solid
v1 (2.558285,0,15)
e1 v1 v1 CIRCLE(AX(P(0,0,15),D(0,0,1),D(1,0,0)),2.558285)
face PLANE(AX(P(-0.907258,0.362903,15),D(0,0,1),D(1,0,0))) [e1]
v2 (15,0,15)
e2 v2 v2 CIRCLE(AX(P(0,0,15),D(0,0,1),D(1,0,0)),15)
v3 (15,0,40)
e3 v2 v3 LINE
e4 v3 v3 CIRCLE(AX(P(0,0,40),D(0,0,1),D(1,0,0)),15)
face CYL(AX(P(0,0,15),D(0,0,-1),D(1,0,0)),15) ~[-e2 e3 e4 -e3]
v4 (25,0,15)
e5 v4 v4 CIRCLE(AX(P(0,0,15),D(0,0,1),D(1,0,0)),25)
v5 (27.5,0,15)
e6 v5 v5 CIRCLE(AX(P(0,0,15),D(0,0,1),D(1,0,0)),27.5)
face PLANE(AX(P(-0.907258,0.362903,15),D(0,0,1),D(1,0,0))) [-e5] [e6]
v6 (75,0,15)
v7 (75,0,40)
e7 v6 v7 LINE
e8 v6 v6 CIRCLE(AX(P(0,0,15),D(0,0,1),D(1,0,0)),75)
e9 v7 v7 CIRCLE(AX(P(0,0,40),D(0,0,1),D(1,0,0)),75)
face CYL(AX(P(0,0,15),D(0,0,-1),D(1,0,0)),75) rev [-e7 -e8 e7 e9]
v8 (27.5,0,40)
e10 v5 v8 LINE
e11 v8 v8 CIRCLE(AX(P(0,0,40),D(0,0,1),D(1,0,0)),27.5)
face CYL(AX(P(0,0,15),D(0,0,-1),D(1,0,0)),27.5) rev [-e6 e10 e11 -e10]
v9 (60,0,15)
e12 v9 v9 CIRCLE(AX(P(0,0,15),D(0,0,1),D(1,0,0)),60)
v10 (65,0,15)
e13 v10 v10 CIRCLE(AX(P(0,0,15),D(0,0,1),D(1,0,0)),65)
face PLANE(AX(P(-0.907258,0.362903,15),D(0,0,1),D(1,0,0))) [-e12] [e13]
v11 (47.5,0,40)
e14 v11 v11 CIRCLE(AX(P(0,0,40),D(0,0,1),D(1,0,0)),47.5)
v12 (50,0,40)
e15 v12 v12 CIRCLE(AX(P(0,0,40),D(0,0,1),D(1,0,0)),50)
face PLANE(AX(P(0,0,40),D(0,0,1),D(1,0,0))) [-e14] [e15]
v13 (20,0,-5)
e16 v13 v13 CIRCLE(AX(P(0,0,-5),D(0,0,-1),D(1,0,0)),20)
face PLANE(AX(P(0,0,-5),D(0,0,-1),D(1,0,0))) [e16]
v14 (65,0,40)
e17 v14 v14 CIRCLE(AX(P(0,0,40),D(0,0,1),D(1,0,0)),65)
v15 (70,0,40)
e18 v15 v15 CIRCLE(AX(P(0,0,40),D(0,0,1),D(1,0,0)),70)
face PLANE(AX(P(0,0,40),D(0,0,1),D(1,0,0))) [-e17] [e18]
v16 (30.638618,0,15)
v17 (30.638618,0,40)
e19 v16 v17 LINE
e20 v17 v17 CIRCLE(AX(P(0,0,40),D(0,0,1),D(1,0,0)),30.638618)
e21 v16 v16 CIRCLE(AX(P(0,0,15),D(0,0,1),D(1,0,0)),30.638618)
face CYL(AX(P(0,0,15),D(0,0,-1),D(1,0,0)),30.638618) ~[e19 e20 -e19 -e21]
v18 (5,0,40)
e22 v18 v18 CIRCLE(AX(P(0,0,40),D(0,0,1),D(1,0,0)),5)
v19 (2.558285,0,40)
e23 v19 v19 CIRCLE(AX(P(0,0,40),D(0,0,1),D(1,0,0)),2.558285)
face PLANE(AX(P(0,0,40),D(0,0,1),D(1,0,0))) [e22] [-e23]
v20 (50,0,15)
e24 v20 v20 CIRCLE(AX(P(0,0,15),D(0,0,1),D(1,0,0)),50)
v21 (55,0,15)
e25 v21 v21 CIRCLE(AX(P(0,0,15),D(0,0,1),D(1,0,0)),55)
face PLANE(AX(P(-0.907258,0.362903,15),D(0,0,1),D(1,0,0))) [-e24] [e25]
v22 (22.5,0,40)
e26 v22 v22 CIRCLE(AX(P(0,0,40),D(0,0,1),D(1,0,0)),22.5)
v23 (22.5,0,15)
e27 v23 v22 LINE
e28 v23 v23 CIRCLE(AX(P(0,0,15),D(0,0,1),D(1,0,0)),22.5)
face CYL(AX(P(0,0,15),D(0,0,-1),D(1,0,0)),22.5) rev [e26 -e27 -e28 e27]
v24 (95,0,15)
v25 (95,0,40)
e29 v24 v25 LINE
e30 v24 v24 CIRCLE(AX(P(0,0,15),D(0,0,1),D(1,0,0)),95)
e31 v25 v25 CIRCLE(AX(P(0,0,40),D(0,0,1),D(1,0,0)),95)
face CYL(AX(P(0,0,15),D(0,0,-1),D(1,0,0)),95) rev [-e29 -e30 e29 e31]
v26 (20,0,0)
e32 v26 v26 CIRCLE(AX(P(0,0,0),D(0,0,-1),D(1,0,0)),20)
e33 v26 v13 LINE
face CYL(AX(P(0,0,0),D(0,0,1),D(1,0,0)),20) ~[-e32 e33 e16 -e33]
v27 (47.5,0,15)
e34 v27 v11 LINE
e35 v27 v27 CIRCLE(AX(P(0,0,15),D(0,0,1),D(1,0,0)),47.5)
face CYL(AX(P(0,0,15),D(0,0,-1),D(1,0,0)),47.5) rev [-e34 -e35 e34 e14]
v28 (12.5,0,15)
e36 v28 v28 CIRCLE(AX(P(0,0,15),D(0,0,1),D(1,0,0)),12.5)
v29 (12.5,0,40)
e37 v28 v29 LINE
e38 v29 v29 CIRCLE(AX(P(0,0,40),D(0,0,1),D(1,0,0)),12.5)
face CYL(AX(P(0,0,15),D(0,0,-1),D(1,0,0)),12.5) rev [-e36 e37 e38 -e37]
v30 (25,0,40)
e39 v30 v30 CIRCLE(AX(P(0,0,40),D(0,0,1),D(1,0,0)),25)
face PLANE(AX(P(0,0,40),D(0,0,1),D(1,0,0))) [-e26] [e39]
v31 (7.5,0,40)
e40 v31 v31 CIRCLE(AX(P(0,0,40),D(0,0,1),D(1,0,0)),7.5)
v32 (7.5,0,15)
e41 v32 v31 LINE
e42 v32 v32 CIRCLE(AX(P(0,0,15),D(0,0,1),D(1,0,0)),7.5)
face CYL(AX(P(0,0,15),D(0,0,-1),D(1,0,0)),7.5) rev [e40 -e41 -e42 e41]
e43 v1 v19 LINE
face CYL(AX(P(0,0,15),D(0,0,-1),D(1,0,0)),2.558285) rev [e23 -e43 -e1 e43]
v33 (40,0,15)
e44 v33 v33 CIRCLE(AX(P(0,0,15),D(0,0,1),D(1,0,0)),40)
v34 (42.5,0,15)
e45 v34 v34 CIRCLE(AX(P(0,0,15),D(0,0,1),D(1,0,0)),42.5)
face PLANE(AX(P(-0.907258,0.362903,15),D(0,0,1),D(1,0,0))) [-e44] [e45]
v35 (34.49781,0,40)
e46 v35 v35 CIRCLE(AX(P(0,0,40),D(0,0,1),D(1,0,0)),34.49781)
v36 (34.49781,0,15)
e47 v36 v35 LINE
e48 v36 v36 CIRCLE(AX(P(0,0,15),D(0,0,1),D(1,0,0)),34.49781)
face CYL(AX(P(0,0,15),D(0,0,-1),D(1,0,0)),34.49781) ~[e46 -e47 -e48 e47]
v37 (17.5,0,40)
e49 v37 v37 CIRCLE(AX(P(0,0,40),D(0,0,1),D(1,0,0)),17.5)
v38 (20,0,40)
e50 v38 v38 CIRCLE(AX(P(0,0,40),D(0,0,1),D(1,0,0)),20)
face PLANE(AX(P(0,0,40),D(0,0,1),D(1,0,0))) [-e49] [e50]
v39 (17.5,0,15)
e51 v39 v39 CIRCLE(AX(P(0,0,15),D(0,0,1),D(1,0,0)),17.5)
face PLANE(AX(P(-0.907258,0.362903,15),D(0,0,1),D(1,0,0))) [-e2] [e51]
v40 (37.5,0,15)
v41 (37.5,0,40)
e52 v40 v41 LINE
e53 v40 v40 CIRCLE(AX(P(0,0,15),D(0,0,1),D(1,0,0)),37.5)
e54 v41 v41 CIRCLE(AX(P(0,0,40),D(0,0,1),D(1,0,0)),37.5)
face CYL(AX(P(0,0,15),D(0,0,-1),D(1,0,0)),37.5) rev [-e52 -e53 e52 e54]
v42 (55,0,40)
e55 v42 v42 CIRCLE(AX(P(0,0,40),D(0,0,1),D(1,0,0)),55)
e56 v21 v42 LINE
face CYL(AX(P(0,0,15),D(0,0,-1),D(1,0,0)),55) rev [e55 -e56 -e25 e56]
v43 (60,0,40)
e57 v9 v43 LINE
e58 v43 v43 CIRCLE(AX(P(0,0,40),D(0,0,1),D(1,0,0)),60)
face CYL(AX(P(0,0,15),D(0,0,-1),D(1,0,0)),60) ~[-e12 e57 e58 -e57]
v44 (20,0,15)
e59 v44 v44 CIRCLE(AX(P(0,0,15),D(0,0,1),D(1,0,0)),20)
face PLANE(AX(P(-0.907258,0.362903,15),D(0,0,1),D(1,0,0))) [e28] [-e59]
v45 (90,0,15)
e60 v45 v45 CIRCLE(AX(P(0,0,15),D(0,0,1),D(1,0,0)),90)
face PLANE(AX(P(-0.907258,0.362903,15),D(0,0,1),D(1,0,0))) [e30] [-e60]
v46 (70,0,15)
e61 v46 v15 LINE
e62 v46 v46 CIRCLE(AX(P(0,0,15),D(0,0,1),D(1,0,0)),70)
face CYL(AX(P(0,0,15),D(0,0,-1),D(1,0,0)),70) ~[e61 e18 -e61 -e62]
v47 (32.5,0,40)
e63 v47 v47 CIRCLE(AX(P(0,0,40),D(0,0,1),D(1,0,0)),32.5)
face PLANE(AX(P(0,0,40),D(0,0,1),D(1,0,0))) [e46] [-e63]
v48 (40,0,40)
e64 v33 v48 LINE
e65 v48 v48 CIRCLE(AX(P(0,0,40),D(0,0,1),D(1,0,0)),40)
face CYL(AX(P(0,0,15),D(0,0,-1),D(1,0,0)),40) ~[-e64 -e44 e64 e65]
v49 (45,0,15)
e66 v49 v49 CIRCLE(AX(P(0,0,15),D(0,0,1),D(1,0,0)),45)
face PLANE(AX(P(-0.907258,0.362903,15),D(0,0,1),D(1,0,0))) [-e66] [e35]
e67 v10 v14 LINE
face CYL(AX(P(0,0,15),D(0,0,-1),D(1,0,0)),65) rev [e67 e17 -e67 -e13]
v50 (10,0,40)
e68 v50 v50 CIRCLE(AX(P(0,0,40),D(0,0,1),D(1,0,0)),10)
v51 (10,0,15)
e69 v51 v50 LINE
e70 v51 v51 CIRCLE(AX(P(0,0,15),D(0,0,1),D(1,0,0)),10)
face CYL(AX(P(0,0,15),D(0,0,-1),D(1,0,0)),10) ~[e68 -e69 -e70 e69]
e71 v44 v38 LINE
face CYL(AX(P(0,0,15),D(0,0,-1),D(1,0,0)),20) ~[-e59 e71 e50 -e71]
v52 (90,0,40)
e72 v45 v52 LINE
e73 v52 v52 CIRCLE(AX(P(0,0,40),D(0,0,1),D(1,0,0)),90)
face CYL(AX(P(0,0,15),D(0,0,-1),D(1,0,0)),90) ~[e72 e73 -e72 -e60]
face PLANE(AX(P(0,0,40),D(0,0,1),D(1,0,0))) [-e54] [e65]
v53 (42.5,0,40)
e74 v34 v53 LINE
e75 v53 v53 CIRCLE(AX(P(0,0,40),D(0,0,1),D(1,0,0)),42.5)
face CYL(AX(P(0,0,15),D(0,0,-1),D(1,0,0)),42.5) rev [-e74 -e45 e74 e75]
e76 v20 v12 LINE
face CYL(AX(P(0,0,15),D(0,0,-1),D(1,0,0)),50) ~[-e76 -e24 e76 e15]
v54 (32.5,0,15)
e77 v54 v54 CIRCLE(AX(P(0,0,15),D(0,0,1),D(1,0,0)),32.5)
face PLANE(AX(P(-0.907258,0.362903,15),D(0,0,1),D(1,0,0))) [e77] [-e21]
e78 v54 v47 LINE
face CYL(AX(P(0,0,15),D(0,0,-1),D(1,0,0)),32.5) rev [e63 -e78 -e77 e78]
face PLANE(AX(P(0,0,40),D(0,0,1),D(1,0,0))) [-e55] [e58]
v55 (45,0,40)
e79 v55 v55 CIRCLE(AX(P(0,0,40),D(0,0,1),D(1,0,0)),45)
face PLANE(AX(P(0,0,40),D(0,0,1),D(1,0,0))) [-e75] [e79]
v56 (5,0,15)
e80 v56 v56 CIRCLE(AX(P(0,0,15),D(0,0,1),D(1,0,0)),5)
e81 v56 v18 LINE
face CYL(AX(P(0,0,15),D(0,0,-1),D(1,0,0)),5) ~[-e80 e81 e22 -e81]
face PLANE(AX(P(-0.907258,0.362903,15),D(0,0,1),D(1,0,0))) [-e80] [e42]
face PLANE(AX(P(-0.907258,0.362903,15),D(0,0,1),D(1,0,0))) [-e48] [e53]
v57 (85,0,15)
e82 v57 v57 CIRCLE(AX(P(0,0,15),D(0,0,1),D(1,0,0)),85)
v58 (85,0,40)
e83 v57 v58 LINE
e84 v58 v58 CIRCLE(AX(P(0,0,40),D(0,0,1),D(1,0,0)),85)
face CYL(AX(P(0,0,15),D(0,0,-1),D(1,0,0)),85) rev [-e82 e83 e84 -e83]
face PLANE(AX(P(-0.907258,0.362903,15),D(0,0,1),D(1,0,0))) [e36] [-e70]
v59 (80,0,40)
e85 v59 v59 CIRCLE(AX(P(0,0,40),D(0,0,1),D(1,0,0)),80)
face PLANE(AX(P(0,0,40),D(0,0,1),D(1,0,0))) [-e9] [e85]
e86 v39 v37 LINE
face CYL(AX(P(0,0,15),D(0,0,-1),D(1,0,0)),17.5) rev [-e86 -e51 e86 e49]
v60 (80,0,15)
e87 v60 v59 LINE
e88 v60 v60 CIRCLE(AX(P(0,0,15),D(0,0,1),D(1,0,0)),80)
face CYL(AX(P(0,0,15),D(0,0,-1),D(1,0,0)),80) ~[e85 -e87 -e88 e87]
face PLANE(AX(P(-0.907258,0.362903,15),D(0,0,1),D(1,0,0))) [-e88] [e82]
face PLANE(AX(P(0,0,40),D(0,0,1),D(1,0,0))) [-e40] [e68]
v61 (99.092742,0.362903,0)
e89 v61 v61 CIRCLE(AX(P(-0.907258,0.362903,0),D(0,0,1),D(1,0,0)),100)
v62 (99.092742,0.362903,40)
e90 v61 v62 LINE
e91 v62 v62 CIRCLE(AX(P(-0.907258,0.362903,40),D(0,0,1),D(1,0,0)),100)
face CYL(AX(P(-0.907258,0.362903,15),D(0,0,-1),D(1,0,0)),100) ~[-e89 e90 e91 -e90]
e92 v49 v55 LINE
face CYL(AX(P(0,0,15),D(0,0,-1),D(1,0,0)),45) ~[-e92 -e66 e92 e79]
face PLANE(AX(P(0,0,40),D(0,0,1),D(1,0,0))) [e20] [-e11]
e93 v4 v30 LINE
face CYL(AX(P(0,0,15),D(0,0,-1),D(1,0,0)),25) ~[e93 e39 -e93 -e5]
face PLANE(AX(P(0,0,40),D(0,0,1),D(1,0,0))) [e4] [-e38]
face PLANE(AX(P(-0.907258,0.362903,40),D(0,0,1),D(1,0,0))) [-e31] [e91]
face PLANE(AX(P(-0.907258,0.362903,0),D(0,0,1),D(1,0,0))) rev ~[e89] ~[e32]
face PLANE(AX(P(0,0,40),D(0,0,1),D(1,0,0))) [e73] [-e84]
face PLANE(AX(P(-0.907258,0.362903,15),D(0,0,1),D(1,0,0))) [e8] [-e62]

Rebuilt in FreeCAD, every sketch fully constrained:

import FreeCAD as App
import Part
import Sketcher
from FreeCAD import Vector

doc = App.newDocument("Part")
body = doc.addObject("PartDesign::Body", "Body")

# Sketch on XY plane
sketch1 = body.newObject("Sketcher::SketchObject", "Sketch")
sketch1.AttachmentSupport = (doc.getObject("XY_Plane"), [""])
sketch1.MapMode = "FlatFace"
sketch1.addGeometry(Part.Circle(Vector(-1, 0, 0), Vector(0, 0, 1), 100), False)
sketch1.addConstraint(Sketcher.Constraint("Diameter", 0, 200.0))
sketch1.addConstraint(Sketcher.Constraint("DistanceX", 0, 3, -1, 1, 0.907258))
sketch1.addConstraint(Sketcher.Constraint("DistanceY", -1, 1, 0, 3, 0.362903))
pad1 = body.newObject("PartDesign::Pad", "Pad")
pad1.Profile = sketch1
pad1.Length = 15

# Sketch on XY plane
sketch2 = body.newObject("Sketcher::SketchObject", "Sketch001")
sketch2.AttachmentSupport = (doc.getObject("XY_Plane"), [""])
sketch2.MapMode = "FlatFace"
sketch2.AttachmentOffset = App.Placement(Vector(0, 0, 15), App.Rotation())
sketch2.addGeometry(Part.Circle(Vector(-0.9, 0.4, 0), Vector(0, 0, 1), 100), False)
sketch2.addGeometry(Part.Circle(Vector(0, 0, 0), Vector(0, 0, 1), 95), False)
sketch2.addGeometry(Part.Circle(Vector(0, 0, 0), Vector(0, 0, 1), 90), False)
sketch2.addGeometry(Part.Circle(Vector(0, 0, 0), Vector(0, 0, 1), 85), False)
sketch2.addGeometry(Part.Circle(Vector(0, 0, 0), Vector(0, 0, 1), 80), False)
sketch2.addGeometry(Part.Circle(Vector(0, 0, 0), Vector(0, 0, 1), 75), False)
sketch2.addGeometry(Part.Circle(Vector(0, 0, 0), Vector(0, 0, 1), 70), False)
sketch2.addGeometry(Part.Circle(Vector(0, 0, 0), Vector(0, 0, 1), 65), False)
sketch2.addGeometry(Part.Circle(Vector(0, 0, 0), Vector(0, 0, 1), 60), False)
sketch2.addGeometry(Part.Circle(Vector(0, 0, 0), Vector(0, 0, 1), 55), False)
sketch2.addGeometry(Part.Circle(Vector(0, 0, 0), Vector(0, 0, 1), 50), False)
sketch2.addGeometry(Part.Circle(Vector(0, 0, 0), Vector(0, 0, 1), 47.5), False)
sketch2.addGeometry(Part.Circle(Vector(0, 0, 0), Vector(0, 0, 1), 45), False)
sketch2.addGeometry(Part.Circle(Vector(0, 0, 0), Vector(0, 0, 1), 42.5), False)
sketch2.addGeometry(Part.Circle(Vector(0, 0, 0), Vector(0, 0, 1), 40), False)
sketch2.addGeometry(Part.Circle(Vector(0, 0, 0), Vector(0, 0, 1), 37.5), False)
sketch2.addGeometry(Part.Circle(Vector(0, 0, 0), Vector(0, 0, 1), 34.5), False)
sketch2.addGeometry(Part.Circle(Vector(0, 0, 0), Vector(0, 0, 1), 32.5), False)
sketch2.addGeometry(Part.Circle(Vector(0, 0, 0), Vector(0, 0, 1), 30.6), False)
sketch2.addGeometry(Part.Circle(Vector(0, 0, 0), Vector(0, 0, 1), 27.5), False)
sketch2.addGeometry(Part.Circle(Vector(0, 0, 0), Vector(0, 0, 1), 25), False)
sketch2.addGeometry(Part.Circle(Vector(0, 0, 0), Vector(0, 0, 1), 22.5), False)
sketch2.addGeometry(Part.Circle(Vector(0, 0, 0), Vector(0, 0, 1), 20), False)
sketch2.addGeometry(Part.Circle(Vector(0, 0, 0), Vector(0, 0, 1), 17.5), False)
sketch2.addGeometry(Part.Circle(Vector(0, 0, 0), Vector(0, 0, 1), 15), False)
sketch2.addGeometry(Part.Circle(Vector(0, 0, 0), Vector(0, 0, 1), 12.5), False)
sketch2.addGeometry(Part.Circle(Vector(0, 0, 0), Vector(0, 0, 1), 10), False)
sketch2.addGeometry(Part.Circle(Vector(0, 0, 0), Vector(0, 0, 1), 7.5), False)
sketch2.addGeometry(Part.Circle(Vector(0, 0, 0), Vector(0, 0, 1), 5), False)
sketch2.addGeometry(Part.Circle(Vector(0, 0, 0), Vector(0, 0, 1), 2.6), False)
sketch2.addConstraint(Sketcher.Constraint("Coincident", 1, 3, -1, 1))
sketch2.addConstraint(Sketcher.Constraint("Coincident", 2, 3, -1, 1))
sketch2.addConstraint(Sketcher.Constraint("Coincident", 3, 3, -1, 1))
sketch2.addConstraint(Sketcher.Constraint("Coincident", 4, 3, -1, 1))
sketch2.addConstraint(Sketcher.Constraint("Coincident", 5, 3, -1, 1))
sketch2.addConstraint(Sketcher.Constraint("Coincident", 6, 3, -1, 1))
sketch2.addConstraint(Sketcher.Constraint("Coincident", 7, 3, -1, 1))
sketch2.addConstraint(Sketcher.Constraint("Coincident", 8, 3, -1, 1))
sketch2.addConstraint(Sketcher.Constraint("Coincident", 9, 3, -1, 1))
sketch2.addConstraint(Sketcher.Constraint("Coincident", 10, 3, -1, 1))
sketch2.addConstraint(Sketcher.Constraint("Coincident", 11, 3, -1, 1))
sketch2.addConstraint(Sketcher.Constraint("Coincident", 12, 3, -1, 1))
sketch2.addConstraint(Sketcher.Constraint("Coincident", 13, 3, -1, 1))
sketch2.addConstraint(Sketcher.Constraint("Coincident", 14, 3, -1, 1))
sketch2.addConstraint(Sketcher.Constraint("Coincident", 15, 3, -1, 1))
sketch2.addConstraint(Sketcher.Constraint("Coincident", 16, 3, -1, 1))
sketch2.addConstraint(Sketcher.Constraint("Coincident", 17, 3, -1, 1))
sketch2.addConstraint(Sketcher.Constraint("Coincident", 18, 3, -1, 1))
sketch2.addConstraint(Sketcher.Constraint("Coincident", 19, 3, -1, 1))
sketch2.addConstraint(Sketcher.Constraint("Coincident", 20, 3, -1, 1))
sketch2.addConstraint(Sketcher.Constraint("Coincident", 21, 3, -1, 1))
sketch2.addConstraint(Sketcher.Constraint("Coincident", 22, 3, -1, 1))
sketch2.addConstraint(Sketcher.Constraint("Coincident", 23, 3, -1, 1))
sketch2.addConstraint(Sketcher.Constraint("Coincident", 24, 3, -1, 1))
sketch2.addConstraint(Sketcher.Constraint("Coincident", 25, 3, -1, 1))
sketch2.addConstraint(Sketcher.Constraint("Coincident", 26, 3, -1, 1))
sketch2.addConstraint(Sketcher.Constraint("Coincident", 27, 3, -1, 1))
sketch2.addConstraint(Sketcher.Constraint("Coincident", 28, 3, -1, 1))
sketch2.addConstraint(Sketcher.Constraint("Coincident", 29, 3, -1, 1))
sketch2.addConstraint(Sketcher.Constraint("Diameter", 0, 200.0))
sketch2.addConstraint(Sketcher.Constraint("Diameter", 1, 190.0))
sketch2.addConstraint(Sketcher.Constraint("Diameter", 2, 180.0))
sketch2.addConstraint(Sketcher.Constraint("Diameter", 3, 170.0))
sketch2.addConstraint(Sketcher.Constraint("Diameter", 4, 160.0))
sketch2.addConstraint(Sketcher.Constraint("Diameter", 5, 150.0))
sketch2.addConstraint(Sketcher.Constraint("Diameter", 6, 140.0))
sketch2.addConstraint(Sketcher.Constraint("Diameter", 7, 130.0))
sketch2.addConstraint(Sketcher.Constraint("Diameter", 8, 120.0))
sketch2.addConstraint(Sketcher.Constraint("Diameter", 9, 110.0))
sketch2.addConstraint(Sketcher.Constraint("Diameter", 10, 100.0))
sketch2.addConstraint(Sketcher.Constraint("Diameter", 11, 95.0))
sketch2.addConstraint(Sketcher.Constraint("Diameter", 12, 90.0))
sketch2.addConstraint(Sketcher.Constraint("Diameter", 13, 85.0))
sketch2.addConstraint(Sketcher.Constraint("Diameter", 14, 80.0))
sketch2.addConstraint(Sketcher.Constraint("Diameter", 15, 75.0))
sketch2.addConstraint(Sketcher.Constraint("Diameter", 17, 65.0))
sketch2.addConstraint(Sketcher.Constraint("Diameter", 19, 55.0))
sketch2.addConstraint(Sketcher.Constraint("Diameter", 20, 50.0))
sketch2.addConstraint(Sketcher.Constraint("Diameter", 21, 45.0))
sketch2.addConstraint(Sketcher.Constraint("Diameter", 22, 40.0))
sketch2.addConstraint(Sketcher.Constraint("Diameter", 23, 35.0))
sketch2.addConstraint(Sketcher.Constraint("Diameter", 24, 30.0))
sketch2.addConstraint(Sketcher.Constraint("Diameter", 25, 25.0))
sketch2.addConstraint(Sketcher.Constraint("Diameter", 26, 20.0))
sketch2.addConstraint(Sketcher.Constraint("Diameter", 27, 15.0))
sketch2.addConstraint(Sketcher.Constraint("Diameter", 28, 10.0))
sketch2.addConstraint(Sketcher.Constraint("Diameter", 16, 68.99562))
sketch2.addConstraint(Sketcher.Constraint("Diameter", 29, 5.11657))
sketch2.addConstraint(Sketcher.Constraint("Diameter", 18, 61.277236))
sketch2.addConstraint(Sketcher.Constraint("DistanceX", 0, 3, -1, 1, 0.907258))
sketch2.addConstraint(Sketcher.Constraint("DistanceY", -1, 1, 0, 3, 0.362903))
pad2 = body.newObject("PartDesign::Pad", "Pad001")
pad2.Profile = sketch2
pad2.Length = 25

# Sketch on XY plane
sketch3 = body.newObject("Sketcher::SketchObject", "Sketch002")
sketch3.AttachmentSupport = (doc.getObject("XY_Plane"), [""])
sketch3.MapMode = "FlatFace"
sketch3.addGeometry(Part.Circle(Vector(0, 0, 0), Vector(0, 0, 1), 20), False)
sketch3.addConstraint(Sketcher.Constraint("Coincident", 0, 3, -1, 1))
sketch3.addConstraint(Sketcher.Constraint("Diameter", 0, 40.0))
pad3 = body.newObject("PartDesign::Pad", "Pad002")
pad3.Profile = sketch3
pad3.Length = 5
pad3.Reversed = True

doc.recompute()
